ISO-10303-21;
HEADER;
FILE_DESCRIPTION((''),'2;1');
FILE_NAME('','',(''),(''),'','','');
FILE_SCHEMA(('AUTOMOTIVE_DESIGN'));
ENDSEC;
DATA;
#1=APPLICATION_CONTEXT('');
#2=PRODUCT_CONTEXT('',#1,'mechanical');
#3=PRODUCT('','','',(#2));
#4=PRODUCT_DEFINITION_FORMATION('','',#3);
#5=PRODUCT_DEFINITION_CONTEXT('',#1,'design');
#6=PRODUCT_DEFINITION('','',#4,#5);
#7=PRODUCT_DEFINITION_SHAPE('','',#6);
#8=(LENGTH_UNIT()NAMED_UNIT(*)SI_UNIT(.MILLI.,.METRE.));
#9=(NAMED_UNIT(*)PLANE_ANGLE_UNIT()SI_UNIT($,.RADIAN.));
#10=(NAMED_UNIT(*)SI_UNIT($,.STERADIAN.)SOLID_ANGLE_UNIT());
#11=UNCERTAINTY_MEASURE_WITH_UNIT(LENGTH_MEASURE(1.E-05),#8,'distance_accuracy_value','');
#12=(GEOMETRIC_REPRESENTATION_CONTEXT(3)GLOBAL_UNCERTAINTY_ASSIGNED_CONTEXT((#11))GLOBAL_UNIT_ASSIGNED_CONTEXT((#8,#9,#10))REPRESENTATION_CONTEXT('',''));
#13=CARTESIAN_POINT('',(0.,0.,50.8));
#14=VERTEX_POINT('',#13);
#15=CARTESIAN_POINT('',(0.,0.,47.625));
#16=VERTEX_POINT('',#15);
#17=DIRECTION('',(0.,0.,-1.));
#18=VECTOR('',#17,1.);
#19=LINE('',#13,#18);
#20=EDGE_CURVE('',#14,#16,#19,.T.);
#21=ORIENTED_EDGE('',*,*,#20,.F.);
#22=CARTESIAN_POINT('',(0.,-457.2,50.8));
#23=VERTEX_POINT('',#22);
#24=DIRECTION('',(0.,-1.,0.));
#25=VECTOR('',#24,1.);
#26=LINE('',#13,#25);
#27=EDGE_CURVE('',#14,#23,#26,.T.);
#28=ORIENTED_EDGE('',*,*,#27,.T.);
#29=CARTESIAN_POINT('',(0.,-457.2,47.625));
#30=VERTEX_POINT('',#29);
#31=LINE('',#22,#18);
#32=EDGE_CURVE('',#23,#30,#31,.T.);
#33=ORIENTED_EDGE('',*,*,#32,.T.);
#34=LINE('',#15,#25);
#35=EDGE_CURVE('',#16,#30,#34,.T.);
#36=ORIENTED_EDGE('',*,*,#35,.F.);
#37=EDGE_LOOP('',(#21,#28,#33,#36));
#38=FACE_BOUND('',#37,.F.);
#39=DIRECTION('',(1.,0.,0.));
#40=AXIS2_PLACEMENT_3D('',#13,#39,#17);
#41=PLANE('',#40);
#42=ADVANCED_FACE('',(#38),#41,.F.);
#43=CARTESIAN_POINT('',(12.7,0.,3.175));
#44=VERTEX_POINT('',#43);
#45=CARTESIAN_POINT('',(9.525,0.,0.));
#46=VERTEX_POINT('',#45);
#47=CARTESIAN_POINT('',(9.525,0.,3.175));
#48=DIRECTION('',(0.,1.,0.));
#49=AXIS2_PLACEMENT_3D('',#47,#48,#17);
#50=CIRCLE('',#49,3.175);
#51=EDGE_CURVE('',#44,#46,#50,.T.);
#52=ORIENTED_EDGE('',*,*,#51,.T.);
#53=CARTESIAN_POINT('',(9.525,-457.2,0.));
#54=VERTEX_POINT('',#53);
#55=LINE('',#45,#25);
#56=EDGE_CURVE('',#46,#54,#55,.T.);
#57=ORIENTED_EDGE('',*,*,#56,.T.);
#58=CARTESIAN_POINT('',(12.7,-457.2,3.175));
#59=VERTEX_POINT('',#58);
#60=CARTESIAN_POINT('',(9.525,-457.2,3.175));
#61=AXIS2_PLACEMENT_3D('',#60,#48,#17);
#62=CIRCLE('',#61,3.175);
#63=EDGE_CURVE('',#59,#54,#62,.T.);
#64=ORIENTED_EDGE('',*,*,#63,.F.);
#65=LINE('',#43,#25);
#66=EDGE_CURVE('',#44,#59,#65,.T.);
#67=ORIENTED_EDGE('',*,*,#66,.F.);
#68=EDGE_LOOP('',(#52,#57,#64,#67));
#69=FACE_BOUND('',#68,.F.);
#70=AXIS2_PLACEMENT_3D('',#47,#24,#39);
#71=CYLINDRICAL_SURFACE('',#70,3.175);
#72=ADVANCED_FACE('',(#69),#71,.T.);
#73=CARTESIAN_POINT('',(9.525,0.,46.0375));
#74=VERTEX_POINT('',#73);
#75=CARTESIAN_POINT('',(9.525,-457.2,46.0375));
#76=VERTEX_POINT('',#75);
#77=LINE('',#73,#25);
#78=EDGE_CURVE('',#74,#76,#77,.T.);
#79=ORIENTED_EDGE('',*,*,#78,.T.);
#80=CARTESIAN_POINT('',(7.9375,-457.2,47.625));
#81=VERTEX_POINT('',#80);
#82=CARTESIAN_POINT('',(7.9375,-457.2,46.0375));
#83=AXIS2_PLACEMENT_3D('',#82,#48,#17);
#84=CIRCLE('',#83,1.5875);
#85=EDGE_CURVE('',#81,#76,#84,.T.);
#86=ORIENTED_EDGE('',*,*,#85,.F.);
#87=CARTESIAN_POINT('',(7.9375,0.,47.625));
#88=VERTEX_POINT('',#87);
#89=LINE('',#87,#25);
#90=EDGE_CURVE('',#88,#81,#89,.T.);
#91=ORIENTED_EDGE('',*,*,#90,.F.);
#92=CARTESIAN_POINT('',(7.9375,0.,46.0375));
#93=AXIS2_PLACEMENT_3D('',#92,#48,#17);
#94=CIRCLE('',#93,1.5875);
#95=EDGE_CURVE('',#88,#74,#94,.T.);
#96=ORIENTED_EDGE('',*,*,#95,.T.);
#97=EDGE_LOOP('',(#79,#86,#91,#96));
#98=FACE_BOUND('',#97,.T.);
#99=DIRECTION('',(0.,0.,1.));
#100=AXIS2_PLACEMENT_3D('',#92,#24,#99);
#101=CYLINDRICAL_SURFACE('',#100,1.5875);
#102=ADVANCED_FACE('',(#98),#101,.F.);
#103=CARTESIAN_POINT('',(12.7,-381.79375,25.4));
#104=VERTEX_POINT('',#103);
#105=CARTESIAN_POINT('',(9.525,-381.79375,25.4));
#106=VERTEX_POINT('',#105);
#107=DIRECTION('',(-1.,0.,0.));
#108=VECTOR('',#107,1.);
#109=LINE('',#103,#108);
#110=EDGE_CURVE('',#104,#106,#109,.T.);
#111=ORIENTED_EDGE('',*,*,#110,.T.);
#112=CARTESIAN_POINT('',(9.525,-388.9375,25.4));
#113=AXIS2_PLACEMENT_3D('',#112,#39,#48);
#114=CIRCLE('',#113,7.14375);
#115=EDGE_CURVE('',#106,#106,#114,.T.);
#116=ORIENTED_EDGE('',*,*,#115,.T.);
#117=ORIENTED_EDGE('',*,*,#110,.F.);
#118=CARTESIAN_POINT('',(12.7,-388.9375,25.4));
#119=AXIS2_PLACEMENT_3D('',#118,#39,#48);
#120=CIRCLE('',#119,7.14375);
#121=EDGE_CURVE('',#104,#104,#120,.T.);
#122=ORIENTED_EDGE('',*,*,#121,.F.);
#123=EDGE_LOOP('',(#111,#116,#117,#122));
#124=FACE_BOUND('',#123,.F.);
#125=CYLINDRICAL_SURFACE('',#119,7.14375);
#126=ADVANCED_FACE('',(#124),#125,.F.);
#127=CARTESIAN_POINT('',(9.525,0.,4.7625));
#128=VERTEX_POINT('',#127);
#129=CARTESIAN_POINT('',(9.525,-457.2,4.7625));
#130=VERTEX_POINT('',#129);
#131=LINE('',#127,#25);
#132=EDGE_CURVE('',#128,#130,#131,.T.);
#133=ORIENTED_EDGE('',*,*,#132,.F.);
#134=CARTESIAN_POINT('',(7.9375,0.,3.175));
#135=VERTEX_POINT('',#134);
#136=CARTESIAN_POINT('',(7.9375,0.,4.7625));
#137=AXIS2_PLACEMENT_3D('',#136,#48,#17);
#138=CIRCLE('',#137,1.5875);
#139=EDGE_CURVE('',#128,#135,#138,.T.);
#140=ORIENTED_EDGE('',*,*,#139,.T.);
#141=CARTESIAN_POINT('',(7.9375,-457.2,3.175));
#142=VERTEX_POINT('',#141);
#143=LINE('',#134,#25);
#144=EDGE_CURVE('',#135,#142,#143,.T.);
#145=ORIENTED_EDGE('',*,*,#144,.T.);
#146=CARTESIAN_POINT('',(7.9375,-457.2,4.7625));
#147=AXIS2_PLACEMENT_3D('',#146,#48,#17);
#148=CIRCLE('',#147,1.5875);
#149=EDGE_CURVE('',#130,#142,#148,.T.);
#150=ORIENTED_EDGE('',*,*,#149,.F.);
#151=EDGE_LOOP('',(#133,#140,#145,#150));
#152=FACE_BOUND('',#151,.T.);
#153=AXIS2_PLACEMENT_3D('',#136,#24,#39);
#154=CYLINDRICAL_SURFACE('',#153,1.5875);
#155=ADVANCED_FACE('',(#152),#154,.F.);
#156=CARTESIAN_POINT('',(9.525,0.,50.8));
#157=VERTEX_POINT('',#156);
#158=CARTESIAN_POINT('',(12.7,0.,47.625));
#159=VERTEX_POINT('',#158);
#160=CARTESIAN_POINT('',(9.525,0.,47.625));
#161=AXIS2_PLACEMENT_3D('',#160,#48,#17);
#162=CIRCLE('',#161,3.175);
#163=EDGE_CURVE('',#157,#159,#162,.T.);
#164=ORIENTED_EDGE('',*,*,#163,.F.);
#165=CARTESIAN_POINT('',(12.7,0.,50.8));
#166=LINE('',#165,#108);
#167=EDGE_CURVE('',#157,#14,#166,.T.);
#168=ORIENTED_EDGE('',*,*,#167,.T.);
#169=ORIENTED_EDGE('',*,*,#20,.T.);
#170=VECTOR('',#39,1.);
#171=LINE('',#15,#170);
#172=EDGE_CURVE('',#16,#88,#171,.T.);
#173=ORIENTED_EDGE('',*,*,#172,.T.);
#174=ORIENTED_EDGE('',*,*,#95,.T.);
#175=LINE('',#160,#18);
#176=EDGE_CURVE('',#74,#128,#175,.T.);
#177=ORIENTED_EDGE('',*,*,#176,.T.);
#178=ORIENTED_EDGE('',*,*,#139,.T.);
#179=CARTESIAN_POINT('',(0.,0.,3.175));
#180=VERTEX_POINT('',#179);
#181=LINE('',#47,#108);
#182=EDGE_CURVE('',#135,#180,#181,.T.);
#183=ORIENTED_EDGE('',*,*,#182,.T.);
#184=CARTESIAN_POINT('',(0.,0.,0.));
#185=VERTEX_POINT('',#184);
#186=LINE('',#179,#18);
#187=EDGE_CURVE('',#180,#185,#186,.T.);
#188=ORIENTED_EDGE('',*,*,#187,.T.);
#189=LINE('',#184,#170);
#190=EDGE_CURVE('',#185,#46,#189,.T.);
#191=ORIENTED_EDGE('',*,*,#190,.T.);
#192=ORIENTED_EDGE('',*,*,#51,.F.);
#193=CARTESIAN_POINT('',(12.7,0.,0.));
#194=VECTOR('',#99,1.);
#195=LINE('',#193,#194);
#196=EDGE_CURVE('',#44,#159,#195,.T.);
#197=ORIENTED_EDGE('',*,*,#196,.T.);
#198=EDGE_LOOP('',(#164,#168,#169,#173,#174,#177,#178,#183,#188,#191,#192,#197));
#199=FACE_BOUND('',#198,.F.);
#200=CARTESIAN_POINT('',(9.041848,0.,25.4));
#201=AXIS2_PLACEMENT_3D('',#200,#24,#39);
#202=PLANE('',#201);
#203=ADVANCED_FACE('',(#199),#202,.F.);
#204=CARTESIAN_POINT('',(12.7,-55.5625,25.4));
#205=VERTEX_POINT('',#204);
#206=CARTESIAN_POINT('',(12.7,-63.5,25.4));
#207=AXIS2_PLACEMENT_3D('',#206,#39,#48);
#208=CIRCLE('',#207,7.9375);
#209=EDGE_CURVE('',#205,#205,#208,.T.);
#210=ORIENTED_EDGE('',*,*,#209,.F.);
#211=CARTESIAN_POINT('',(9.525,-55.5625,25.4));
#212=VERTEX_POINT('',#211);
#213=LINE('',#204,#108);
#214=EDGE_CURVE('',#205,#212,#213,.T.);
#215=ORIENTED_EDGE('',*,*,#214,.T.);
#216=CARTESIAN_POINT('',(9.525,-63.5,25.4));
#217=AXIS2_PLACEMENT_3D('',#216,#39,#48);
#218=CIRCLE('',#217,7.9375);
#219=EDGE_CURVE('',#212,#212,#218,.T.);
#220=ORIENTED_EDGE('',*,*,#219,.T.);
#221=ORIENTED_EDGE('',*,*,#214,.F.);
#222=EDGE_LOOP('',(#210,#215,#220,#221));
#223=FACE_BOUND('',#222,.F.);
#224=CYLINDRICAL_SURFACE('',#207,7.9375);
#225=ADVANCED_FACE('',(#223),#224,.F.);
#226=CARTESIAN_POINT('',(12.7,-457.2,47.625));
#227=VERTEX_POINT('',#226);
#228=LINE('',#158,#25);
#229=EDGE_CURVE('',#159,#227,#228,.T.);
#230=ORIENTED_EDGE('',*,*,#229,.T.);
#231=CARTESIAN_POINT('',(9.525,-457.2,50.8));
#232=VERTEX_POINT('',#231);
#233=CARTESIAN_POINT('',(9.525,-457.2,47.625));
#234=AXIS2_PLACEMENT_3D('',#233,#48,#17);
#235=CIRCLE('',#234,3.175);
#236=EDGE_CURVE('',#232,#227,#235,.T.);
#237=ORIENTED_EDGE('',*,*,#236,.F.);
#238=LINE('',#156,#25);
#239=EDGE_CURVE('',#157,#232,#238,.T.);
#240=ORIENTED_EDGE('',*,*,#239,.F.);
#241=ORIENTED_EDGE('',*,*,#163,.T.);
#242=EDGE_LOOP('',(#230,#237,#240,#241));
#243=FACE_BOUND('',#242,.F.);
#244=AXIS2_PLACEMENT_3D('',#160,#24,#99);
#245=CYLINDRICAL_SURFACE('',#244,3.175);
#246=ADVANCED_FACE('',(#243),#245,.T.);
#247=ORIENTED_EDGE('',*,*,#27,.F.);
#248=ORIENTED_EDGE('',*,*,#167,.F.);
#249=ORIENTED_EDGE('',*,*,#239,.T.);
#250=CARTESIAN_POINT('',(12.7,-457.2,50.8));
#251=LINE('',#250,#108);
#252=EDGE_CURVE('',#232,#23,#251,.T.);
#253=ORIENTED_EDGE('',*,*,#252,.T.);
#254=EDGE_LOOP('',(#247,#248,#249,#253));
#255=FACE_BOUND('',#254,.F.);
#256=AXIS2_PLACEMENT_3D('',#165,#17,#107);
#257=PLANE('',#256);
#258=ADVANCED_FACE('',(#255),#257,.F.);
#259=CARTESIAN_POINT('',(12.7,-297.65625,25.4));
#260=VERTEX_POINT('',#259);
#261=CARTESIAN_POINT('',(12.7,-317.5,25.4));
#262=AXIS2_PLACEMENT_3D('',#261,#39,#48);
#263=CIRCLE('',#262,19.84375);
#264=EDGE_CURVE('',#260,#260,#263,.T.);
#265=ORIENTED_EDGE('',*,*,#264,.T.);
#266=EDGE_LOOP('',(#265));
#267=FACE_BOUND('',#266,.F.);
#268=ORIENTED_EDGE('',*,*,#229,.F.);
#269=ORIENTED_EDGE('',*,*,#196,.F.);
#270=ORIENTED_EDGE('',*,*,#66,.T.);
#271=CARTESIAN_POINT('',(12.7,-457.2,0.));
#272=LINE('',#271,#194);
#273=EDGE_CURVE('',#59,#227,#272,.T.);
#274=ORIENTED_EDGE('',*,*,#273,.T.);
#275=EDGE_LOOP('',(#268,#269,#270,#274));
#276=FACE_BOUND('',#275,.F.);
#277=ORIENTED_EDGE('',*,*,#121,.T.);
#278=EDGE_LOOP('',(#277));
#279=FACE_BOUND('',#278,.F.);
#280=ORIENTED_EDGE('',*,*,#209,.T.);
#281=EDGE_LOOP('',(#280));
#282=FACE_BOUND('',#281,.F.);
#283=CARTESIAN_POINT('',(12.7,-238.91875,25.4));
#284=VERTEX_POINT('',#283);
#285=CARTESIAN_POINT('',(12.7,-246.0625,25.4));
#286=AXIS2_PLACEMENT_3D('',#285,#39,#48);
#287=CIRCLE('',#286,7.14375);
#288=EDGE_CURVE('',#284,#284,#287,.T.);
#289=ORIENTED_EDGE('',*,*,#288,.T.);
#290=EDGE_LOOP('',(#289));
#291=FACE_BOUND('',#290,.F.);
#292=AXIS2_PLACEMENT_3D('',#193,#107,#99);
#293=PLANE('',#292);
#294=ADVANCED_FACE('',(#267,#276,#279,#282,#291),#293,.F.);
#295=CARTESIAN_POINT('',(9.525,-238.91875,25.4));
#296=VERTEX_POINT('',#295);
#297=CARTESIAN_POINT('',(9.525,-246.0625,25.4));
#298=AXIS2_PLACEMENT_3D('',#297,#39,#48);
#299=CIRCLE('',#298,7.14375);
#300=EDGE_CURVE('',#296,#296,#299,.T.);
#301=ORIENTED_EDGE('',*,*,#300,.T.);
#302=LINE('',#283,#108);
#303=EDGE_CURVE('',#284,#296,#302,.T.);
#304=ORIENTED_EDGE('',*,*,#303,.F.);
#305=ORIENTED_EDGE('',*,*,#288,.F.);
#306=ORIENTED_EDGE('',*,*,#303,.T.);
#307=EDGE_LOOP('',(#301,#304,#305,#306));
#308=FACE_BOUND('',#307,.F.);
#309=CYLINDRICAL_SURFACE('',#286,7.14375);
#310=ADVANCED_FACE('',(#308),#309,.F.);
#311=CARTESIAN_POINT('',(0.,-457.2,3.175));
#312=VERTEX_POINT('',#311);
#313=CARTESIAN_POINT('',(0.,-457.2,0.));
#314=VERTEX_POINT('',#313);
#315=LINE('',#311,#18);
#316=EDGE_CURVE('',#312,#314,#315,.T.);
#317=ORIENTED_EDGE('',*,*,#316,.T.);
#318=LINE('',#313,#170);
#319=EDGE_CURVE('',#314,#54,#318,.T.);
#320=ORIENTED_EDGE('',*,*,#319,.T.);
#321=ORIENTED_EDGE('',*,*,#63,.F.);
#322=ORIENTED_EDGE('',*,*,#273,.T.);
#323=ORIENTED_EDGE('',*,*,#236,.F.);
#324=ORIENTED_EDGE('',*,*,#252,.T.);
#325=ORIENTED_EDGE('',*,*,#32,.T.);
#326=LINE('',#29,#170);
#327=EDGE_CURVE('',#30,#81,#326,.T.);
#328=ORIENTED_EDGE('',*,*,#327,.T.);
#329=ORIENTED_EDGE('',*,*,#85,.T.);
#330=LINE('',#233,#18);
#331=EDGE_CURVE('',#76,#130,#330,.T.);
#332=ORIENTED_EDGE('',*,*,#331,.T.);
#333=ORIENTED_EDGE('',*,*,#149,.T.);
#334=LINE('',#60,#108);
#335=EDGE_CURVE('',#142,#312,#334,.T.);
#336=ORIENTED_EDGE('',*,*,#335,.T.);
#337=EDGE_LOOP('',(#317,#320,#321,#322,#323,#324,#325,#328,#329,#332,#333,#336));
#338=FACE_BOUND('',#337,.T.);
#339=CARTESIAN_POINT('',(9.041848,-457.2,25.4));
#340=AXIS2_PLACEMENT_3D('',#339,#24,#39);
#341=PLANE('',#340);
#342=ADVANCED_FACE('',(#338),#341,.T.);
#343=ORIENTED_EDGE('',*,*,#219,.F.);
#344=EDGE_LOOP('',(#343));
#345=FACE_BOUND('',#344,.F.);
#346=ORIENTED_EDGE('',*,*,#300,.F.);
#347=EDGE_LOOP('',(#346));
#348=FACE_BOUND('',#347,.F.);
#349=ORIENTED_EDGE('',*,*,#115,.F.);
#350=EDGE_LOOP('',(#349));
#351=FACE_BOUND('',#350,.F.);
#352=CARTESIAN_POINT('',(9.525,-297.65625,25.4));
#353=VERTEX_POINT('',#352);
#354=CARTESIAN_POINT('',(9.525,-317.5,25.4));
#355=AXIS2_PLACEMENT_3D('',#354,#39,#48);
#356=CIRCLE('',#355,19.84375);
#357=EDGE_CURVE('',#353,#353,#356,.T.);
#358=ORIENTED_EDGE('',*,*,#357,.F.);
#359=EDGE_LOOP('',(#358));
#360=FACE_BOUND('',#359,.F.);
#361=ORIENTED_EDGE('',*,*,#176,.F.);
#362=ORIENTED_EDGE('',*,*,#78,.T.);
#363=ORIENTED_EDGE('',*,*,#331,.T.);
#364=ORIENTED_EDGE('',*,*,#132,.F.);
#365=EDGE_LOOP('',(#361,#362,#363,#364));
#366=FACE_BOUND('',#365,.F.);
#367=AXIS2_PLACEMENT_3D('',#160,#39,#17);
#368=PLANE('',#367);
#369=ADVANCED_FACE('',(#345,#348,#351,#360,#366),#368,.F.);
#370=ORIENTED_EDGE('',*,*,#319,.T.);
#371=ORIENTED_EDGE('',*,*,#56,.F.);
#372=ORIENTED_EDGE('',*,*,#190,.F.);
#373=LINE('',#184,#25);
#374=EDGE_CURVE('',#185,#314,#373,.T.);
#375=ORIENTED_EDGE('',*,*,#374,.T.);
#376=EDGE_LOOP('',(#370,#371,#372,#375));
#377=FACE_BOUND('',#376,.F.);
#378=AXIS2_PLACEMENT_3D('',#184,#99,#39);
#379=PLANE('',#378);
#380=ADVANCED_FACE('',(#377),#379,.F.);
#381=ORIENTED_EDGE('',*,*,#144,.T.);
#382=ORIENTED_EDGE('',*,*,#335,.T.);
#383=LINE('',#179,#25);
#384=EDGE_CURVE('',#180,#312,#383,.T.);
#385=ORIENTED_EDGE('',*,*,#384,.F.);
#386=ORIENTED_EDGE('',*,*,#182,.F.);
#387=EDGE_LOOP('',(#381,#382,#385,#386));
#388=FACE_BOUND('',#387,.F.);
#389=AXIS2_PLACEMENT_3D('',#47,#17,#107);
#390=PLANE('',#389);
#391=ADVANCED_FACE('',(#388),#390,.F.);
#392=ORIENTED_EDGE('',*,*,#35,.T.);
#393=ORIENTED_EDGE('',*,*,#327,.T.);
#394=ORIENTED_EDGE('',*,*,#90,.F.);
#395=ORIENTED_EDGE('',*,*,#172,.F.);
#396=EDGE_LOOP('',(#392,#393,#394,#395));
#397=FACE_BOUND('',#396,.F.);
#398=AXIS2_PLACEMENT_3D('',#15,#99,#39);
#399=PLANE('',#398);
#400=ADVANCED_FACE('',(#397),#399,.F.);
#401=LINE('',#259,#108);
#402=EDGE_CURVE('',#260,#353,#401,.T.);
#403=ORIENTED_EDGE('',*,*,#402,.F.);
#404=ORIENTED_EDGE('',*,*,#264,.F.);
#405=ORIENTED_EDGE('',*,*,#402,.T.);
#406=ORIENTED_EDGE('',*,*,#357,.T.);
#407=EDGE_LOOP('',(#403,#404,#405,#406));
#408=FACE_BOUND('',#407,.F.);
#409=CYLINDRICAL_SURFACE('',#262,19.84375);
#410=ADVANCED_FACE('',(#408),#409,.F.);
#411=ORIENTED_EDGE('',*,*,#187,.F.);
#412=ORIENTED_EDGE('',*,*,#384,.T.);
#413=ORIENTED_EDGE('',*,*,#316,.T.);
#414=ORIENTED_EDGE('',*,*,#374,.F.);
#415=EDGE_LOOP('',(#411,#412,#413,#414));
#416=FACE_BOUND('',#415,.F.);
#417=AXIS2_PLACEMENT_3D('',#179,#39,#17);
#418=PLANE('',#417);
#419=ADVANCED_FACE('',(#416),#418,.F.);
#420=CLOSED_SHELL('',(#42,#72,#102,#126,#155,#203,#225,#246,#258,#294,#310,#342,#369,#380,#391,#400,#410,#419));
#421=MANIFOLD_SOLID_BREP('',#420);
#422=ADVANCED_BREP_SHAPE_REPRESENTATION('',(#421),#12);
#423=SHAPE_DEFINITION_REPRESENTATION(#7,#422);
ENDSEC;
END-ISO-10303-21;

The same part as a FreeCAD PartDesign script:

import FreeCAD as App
import Part
import Sketcher
from FreeCAD import Vector
Q = App.Units.Quantity


def edges_at(feature, points):
    """Names of the edges that pass closest to the given points."""
    edges = feature.Shape.Edges
    near = lambda p: min(range(len(edges)), key=lambda i: edges[i].distToShape(Part.Vertex(*p))[0])
    return sorted({f"Edge{near(p) + 1}" for p in points})

doc = App.newDocument("Part")
body = doc.addObject("PartDesign::Body", "Body")

# Sketch on XZ plane
sketch1 = body.newObject("Sketcher::SketchObject", "Sketch")
sketch1.AttachmentSupport = (doc.getObject("XZ_Plane"), [""])
sketch1.MapMode = "FlatFace"
sketch1.addGeometry(Part.LineSegment(Vector(0, 3.2, 0), Vector(0, 0, 0)), False)
sketch1.addGeometry(Part.LineSegment(Vector(0, 0, 0), Vector(12.7, 0, 0)), False)
sketch1.addGeometry(Part.LineSegment(Vector(12.7, 0, 0), Vector(12.7, 50.8, 0)), False)
sketch1.addGeometry(Part.LineSegment(Vector(12.7, 50.8, 0), Vector(0, 50.8, 0)), False)
sketch1.addGeometry(Part.LineSegment(Vector(0, 50.8, 0), Vector(0, 47.6, 0)), False)
sketch1.addGeometry(Part.LineSegment(Vector(0, 47.6, 0), Vector(9.5, 47.6, 0)), False)
sketch1.addGeometry(Part.LineSegment(Vector(9.5, 47.6, 0), Vector(9.5, 3.2, 0)), False)
sketch1.addGeometry(Part.LineSegment(Vector(9.5, 3.2, 0), Vector(0, 3.2, 0)), False)
sketch1.addConstraint(Sketcher.Constraint("Coincident", 0, 2, 1, 1))
sketch1.addConstraint(Sketcher.Constraint("Coincident", 1, 2, 2, 1))
sketch1.addConstraint(Sketcher.Constraint("Coincident", 2, 2, 3, 1))
sketch1.addConstraint(Sketcher.Constraint("Coincident", 3, 2, 4, 1))
sketch1.addConstraint(Sketcher.Constraint("Coincident", 4, 2, 5, 1))
sketch1.addConstraint(Sketcher.Constraint("Coincident", 5, 2, 6, 1))
sketch1.addConstraint(Sketcher.Constraint("Coincident", 6, 2, 7, 1))
sketch1.addConstraint(Sketcher.Constraint("Coincident", 7, 2, 0, 1))
sketch1.addConstraint(Sketcher.Constraint("Vertical", 0))
sketch1.addConstraint(Sketcher.Constraint("Horizontal", 1))
sketch1.addConstraint(Sketcher.Constraint("Vertical", 2))
sketch1.addConstraint(Sketcher.Constraint("Horizontal", 3))
sketch1.addConstraint(Sketcher.Constraint("Vertical", 4))
sketch1.addConstraint(Sketcher.Constraint("Horizontal", 5))
sketch1.addConstraint(Sketcher.Constraint("Vertical", 6))
sketch1.addConstraint(Sketcher.Constraint("Horizontal", 7))
sketch1.addConstraint(Sketcher.Constraint("Coincident", 0, 2, -1, 1))
sketch1.addConstraint(Sketcher.Constraint("PointOnObject", 3, 2, -2))
sketch1.addConstraint(Sketcher.Constraint("Equal", 0, 4))
sketch1.addConstraint(Sketcher.Constraint("DistanceY", 2, 1, 2, 2, Q("2 in")))
sketch1.addConstraint(Sketcher.Constraint("DistanceX", 1, 1, 1, 2, Q("0.5 in")))
sketch1.addConstraint(Sketcher.Constraint("DistanceY", 6, 2, 6, 1, Q("1.75 in")))
sketch1.addConstraint(Sketcher.Constraint("DistanceX", 5, 1, 5, 2, Q("0.375 in")))
pad1 = body.newObject("PartDesign::Pad", "Pad")
pad1.Profile = sketch1
pad1.Length = Q("18 in")
doc.recompute()

fillet = body.newObject("PartDesign::Fillet", "Fillet")
fillet.Base = (pad1, edges_at(pad1, [(9.525, -228.6, 3.175), (9.525, -228.6, 47.625)]))
fillet.Radius = Q("0.0625 in")
doc.recompute()

fillet2 = body.newObject("PartDesign::Fillet", "Fillet001")
fillet2.Base = (fillet, edges_at(fillet, [(12.7, -228.6, 0), (12.7, -228.6, 50.8)]))
fillet2.Radius = Q("0.125 in")

# Sketch on YZ plane
sketch2 = body.newObject("Sketcher::SketchObject", "Sketch001")
sketch2.AttachmentSupport = (doc.getObject("YZ_Plane"), [""])
sketch2.MapMode = "FlatFace"
sketch2.AttachmentOffset = App.Placement(Vector(0, 0, 0.5 * 25.4), App.Rotation())
sketch2.addGeometry(Part.Circle(Vector(-389, 25, 0), Vector(0, 0, 1), 7), False)
sketch2.addGeometry(Part.Circle(Vector(-246, 25, 0), Vector(0, 0, 1), 7), False)
sketch2.addGeometry(Part.Circle(Vector(-318, 25, 0), Vector(0, 0, 1), 20), False)
sketch2.addGeometry(Part.Circle(Vector(-64, 25, 0), Vector(0, 0, 1), 8), False)
sketch2.addConstraint(Sketcher.Constraint("Equal", 0, 1))
sketch2.addConstraint(Sketcher.Constraint("Horizontal", 0, 3, 1, 3))
sketch2.addConstraint(Sketcher.Constraint("Horizontal", 1, 3, 2, 3))
sketch2.addConstraint(Sketcher.Constraint("Horizontal", 2, 3, 3, 3))
sketch2.addConstraint(Sketcher.Constraint("Diameter", 0, Q("0.5625 in")))
sketch2.addConstraint(Sketcher.Constraint("Diameter", 2, Q("1.5625 in")))
sketch2.addConstraint(Sketcher.Constraint("Diameter", 3, Q("0.625 in")))
sketch2.addConstraint(Sketcher.Constraint("DistanceY", -1, 1, 0, 3, Q("1 in")))
sketch2.addConstraint(Sketcher.Constraint("DistanceX", 2, 3, 3, 3, Q("10 in")))
sketch2.addConstraint(Sketcher.Constraint("DistanceX", 2, 3, -1, 1, Q("12.5 in")))
sketch2.addConstraint(Sketcher.Constraint("DistanceX", 0, 3, -1, 1, Q("15.3125 in")))
sketch2.addConstraint(Sketcher.Constraint("DistanceX", 1, 3, -1, 1, Q("9.6875 in")))
pocket1 = body.newObject("PartDesign::Pocket", "Pocket")
pocket1.Profile = sketch2
pocket1.Length = Q("1 in")

doc.recompute()
